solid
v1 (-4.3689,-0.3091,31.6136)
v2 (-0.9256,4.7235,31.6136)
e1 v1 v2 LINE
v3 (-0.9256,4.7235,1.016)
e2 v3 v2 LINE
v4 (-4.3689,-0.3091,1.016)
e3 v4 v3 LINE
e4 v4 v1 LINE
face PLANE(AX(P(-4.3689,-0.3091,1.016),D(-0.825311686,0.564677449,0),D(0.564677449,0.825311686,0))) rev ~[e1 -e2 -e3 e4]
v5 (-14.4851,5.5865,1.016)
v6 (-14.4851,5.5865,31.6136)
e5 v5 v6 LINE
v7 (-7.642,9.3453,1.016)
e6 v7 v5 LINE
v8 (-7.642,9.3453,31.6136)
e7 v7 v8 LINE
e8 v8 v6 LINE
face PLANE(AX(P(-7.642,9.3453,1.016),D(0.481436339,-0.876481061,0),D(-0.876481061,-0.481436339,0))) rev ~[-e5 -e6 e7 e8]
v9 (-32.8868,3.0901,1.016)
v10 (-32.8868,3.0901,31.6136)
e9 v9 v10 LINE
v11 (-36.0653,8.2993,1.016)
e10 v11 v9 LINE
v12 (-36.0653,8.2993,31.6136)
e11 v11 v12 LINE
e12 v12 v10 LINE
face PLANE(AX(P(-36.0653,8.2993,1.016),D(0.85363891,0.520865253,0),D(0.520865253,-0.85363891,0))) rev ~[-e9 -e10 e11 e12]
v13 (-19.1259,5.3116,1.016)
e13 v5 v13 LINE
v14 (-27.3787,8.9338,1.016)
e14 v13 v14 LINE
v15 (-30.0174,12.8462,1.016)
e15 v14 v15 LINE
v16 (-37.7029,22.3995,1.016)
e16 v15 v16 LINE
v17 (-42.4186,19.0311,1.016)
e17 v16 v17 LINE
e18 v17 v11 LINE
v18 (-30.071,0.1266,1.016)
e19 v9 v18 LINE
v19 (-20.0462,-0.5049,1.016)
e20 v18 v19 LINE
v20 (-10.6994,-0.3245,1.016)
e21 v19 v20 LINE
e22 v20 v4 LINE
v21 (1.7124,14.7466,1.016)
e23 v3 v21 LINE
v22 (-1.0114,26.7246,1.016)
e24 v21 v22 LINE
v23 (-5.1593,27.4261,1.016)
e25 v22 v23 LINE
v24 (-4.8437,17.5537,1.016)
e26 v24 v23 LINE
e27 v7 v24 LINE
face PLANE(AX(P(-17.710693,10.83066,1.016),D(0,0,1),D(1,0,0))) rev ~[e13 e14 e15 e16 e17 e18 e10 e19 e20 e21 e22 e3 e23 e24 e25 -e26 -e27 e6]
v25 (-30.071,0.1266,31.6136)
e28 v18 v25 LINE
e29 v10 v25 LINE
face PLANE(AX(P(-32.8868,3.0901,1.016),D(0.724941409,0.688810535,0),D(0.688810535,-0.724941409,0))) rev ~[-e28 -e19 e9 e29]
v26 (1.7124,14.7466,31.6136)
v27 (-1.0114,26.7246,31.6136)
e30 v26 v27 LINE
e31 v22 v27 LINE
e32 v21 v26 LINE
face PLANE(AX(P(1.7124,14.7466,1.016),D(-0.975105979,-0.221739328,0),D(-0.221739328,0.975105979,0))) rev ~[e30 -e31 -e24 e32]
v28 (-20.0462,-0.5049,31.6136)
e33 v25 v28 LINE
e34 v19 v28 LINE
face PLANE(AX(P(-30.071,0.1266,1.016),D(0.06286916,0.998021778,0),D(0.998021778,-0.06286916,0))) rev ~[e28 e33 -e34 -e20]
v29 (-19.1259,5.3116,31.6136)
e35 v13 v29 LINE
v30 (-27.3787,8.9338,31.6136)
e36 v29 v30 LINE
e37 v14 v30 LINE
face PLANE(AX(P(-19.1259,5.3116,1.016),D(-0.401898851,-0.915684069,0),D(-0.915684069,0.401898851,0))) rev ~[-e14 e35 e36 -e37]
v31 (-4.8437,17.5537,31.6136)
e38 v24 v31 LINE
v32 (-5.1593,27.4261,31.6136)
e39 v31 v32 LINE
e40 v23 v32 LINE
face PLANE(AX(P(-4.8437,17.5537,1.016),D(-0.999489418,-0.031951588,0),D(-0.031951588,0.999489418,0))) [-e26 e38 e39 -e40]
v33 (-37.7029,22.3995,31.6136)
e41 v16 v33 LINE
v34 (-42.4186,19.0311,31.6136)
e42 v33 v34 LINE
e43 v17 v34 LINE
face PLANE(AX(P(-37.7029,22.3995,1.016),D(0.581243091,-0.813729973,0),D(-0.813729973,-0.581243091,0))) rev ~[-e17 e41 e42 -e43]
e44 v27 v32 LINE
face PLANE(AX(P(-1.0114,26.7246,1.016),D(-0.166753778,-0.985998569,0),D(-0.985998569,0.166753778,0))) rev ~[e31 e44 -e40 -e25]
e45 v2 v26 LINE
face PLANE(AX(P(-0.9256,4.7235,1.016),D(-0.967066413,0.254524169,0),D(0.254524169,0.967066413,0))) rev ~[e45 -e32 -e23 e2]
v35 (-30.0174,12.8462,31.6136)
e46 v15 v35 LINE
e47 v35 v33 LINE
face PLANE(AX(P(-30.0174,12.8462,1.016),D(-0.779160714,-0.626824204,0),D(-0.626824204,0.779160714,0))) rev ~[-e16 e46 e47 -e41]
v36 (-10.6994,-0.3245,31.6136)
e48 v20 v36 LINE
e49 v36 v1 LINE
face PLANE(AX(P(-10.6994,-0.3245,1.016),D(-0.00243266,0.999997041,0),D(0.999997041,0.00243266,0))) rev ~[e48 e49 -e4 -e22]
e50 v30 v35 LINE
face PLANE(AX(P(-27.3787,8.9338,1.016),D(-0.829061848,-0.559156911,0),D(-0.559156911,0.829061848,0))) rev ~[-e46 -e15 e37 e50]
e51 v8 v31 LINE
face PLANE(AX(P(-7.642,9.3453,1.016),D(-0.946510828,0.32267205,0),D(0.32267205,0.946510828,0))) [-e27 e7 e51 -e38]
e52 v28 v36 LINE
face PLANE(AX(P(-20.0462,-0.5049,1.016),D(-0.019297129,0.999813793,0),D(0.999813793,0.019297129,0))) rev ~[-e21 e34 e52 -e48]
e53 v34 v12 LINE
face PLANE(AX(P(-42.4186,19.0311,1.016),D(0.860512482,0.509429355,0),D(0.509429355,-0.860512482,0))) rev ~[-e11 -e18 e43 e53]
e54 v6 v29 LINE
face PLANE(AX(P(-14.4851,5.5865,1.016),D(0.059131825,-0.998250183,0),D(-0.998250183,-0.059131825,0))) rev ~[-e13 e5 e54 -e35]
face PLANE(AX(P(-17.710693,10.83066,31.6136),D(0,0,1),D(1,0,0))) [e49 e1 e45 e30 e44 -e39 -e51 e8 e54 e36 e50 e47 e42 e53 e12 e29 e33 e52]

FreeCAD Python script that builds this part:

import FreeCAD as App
import Part
import Sketcher

V = App.Vector
Q = App.Units.Quantity

doc = App.newDocument("Part")
params = doc.addObject("Spreadsheet::Sheet", "Params")
for row, (alias, value) in enumerate([
    ("sketch1_length", "0.491 in"),
    ("pad1_length", "30.5976 mm"),
], start=1):
    params.set(f"A{row}", alias)
    params.set(f"B{row}", "=" + value)
    params.setAlias(f"B{row}", alias)

body = doc.addObject("PartDesign::Body", "Body")

# Sketch on XY plane
sketch1 = body.newObject("Sketcher::SketchObject", "Sketch")
sketch1.AttachmentSupport = (doc.getObject("XY_Plane"), [""])
sketch1.MapMode = "FlatFace"
sketch1.AttachmentOffset = App.Placement(V(0, 0, 0.04 * 25.4), App.Rotation())
sketch1.addGeometry([
    Part.LineSegment(V(-4.3689, -0.3091, 0), V(-0.9256, 4.7235, 0)),  # 0
    Part.LineSegment(V(-0.9256, 4.7235, 0), V(1.7124, 14.7466, 0)),  # 1
    Part.LineSegment(V(1.7124, 14.7466, 0), V(-1.0114, 26.7246, 0)),  # 2
    Part.LineSegment(V(-1.0114, 26.7246, 0), V(-5.1593, 27.4261, 0)),  # 3
    Part.LineSegment(V(-5.1593, 27.4261, 0), V(-4.8437, 17.5537, 0)),  # 4
    Part.LineSegment(V(-4.8437, 17.5537, 0), V(-7.642, 9.3453, 0)),  # 5
    Part.LineSegment(V(-7.642, 9.3453, 0), V(-14.4851, 5.5865, 0)),  # 6
    Part.LineSegment(V(-14.4851, 5.5865, 0), V(-19.1259, 5.3116, 0)),  # 7
    Part.LineSegment(V(-19.1259, 5.3116, 0), V(-27.3787, 8.9338, 0)),  # 8
    Part.LineSegment(V(-27.3787, 8.9338, 0), V(-30.0174, 12.8462, 0)),  # 9
    Part.LineSegment(V(-30.0174, 12.8462, 0), V(-37.7029, 22.3995, 0)),  # 10
    Part.LineSegment(V(-37.7029, 22.3995, 0), V(-42.4186, 19.0311, 0)),  # 11
    Part.LineSegment(V(-42.4186, 19.0311, 0), V(-36.0653, 8.2993, 0)),  # 12
    Part.LineSegment(V(-36.0653, 8.2993, 0), V(-32.8868, 3.0901, 0)),  # 13
    Part.LineSegment(V(-32.8868, 3.0901, 0), V(-30.071, 0.1266, 0)),  # 14
    Part.LineSegment(V(-30.071, 0.1266, 0), V(-20.0462, -0.5049, 0)),  # 15
    Part.LineSegment(V(-20.0462, -0.5049, 0), V(-10.6994, -0.3245, 0)),  # 16
    Part.LineSegment(V(-10.6994, -0.3245, 0), V(-4.3689, -0.3091, 0)),  # 17
], False)
sketch1.addConstraint([
    Sketcher.Constraint("Coincident", 0, 2, 1, 1),
    Sketcher.Constraint("Coincident", 1, 2, 2, 1),
    Sketcher.Constraint("Coincident", 2, 2, 3, 1),
    Sketcher.Constraint("Coincident", 3, 2, 4, 1),
    Sketcher.Constraint("Coincident", 4, 2, 5, 1),
    Sketcher.Constraint("Coincident", 5, 2, 6, 1),
    Sketcher.Constraint("Coincident", 6, 2, 7, 1),
    Sketcher.Constraint("Coincident", 7, 2, 8, 1),
    Sketcher.Constraint("Coincident", 8, 2, 9, 1),
    Sketcher.Constraint("Coincident", 9, 2, 10, 1),
    Sketcher.Constraint("Coincident", 10, 2, 11, 1),
    Sketcher.Constraint("Coincident", 11, 2, 12, 1),
    Sketcher.Constraint("Coincident", 12, 2, 13, 1),
    Sketcher.Constraint("Coincident", 13, 2, 14, 1),
    Sketcher.Constraint("Coincident", 14, 2, 15, 1),
    Sketcher.Constraint("Coincident", 15, 2, 16, 1),
    Sketcher.Constraint("Coincident", 16, 2, 17, 1),
    Sketcher.Constraint("Coincident", 17, 2, 0, 1),
    Sketcher.Constraint("Distance", 12, Q("0.491 in")),
    Sketcher.Constraint("DistanceX", 3, 2, -1, 1, Q("0.203122 in")),
    Sketcher.Constraint("DistanceX", 7, 2, -1, 1, Q("0.753 in")),
    Sketcher.Constraint("DistanceX", 10, 2, -1, 1, Q("1.4843701 in")),
    Sketcher.Constraint("DistanceX", 17, 2, -1, 1, Q("0.172 in")),
    Sketcher.Constraint("DistanceY", 12, 2, 9, 2, Q("0.179 in")),
    Sketcher.Constraint("DistanceX", 12, 2, 8, 2, Q("0.342 in")),
    Sketcher.Constraint("DistanceX", 14, 2, 8, 2, Q("0.106 in")),
    Sketcher.Constraint("DistanceY", 15, 2, 7, 2, Q("0.229 in")),
    Sketcher.Constraint("Distance", 9, Q("0.1858 in")),
    Sketcher.Constraint("DistanceX", 4, 2, -1, 1, Q("0.1907 in")),
    Sketcher.Constraint("DistanceY", -1, 1, 4, 2, Q("0.6911 in")),
    Sketcher.Constraint("DistanceX", 8, 2, -1, 1, Q("1.0779 in")),
    Sketcher.Constraint("DistanceY", 0, 2, 1, 2, Q("0.3946 in")),
    Sketcher.Constraint("DistanceX", 3, 2, 2, 2, Q("0.1633 in")),
    Sketcher.Constraint("DistanceY", 1, 2, 3, 2, Q("0.4992 in")),
    Sketcher.Constraint("DistanceX", 6, 2, 1, 2, Q("0.6377 in")),
    Sketcher.Constraint("DistanceX", 7, 2, 6, 2, Q("0.1827 in")),
    Sketcher.Constraint("DistanceY", 7, 2, 5, 2, Q("0.1588 in")),
    Sketcher.Constraint("DistanceY", 7, 2, 8, 2, Q("0.1426 in")),
    Sketcher.Constraint("DistanceX", 9, 2, 7, 2, Q("0.4288 in")),
    Sketcher.Constraint("DistanceX", 10, 2, 5, 2, Q("1.1835 in")),
    Sketcher.Constraint("DistanceY", 9, 2, 11, 2, Q("0.2435 in")),
    Sketcher.Constraint("DistanceY", 13, 2, 9, 2, Q("0.3841 in")),
    Sketcher.Constraint("DistanceY", 15, 2, 16, 2, Q("0.0071 in")),
    Sketcher.Constraint("DistanceX", 16, 2, 0, 2, Q("0.3848 in")),
    Sketcher.Constraint("DistanceY", 16, 2, 17, 2, Q("0.0006 in")),
    Sketcher.Constraint("DistanceY", 17, 2, 6, 2, Q("0.2321 in")),
    Sketcher.Constraint("Distance", 0, Q("6.0978 mm")),
    Sketcher.Constraint("Distance", 1, Q("10.3644 mm")),
    Sketcher.Constraint("Distance", 2, Q("12.2838 mm")),
    Sketcher.Constraint("Distance", 4, Q("9.8774 mm")),
    Sketcher.Constraint("Distance", 10, Q("12.261 mm")),
    Sketcher.Constraint("Distance", 13, Q("6.1023 mm")),
    Sketcher.Constraint("Distance", 14, Q("4.088 mm")),
    Sketcher.Constraint("Distance", 15, Q("10.0447 mm")),
])
sketch1.setExpression("Constraints[18]", "Params.sketch1_length")
pad1 = body.newObject("PartDesign::Pad", "Pad")
pad1.Profile = sketch1
pad1.setExpression("Length", "Params.pad1_length")

doc.recompute()
